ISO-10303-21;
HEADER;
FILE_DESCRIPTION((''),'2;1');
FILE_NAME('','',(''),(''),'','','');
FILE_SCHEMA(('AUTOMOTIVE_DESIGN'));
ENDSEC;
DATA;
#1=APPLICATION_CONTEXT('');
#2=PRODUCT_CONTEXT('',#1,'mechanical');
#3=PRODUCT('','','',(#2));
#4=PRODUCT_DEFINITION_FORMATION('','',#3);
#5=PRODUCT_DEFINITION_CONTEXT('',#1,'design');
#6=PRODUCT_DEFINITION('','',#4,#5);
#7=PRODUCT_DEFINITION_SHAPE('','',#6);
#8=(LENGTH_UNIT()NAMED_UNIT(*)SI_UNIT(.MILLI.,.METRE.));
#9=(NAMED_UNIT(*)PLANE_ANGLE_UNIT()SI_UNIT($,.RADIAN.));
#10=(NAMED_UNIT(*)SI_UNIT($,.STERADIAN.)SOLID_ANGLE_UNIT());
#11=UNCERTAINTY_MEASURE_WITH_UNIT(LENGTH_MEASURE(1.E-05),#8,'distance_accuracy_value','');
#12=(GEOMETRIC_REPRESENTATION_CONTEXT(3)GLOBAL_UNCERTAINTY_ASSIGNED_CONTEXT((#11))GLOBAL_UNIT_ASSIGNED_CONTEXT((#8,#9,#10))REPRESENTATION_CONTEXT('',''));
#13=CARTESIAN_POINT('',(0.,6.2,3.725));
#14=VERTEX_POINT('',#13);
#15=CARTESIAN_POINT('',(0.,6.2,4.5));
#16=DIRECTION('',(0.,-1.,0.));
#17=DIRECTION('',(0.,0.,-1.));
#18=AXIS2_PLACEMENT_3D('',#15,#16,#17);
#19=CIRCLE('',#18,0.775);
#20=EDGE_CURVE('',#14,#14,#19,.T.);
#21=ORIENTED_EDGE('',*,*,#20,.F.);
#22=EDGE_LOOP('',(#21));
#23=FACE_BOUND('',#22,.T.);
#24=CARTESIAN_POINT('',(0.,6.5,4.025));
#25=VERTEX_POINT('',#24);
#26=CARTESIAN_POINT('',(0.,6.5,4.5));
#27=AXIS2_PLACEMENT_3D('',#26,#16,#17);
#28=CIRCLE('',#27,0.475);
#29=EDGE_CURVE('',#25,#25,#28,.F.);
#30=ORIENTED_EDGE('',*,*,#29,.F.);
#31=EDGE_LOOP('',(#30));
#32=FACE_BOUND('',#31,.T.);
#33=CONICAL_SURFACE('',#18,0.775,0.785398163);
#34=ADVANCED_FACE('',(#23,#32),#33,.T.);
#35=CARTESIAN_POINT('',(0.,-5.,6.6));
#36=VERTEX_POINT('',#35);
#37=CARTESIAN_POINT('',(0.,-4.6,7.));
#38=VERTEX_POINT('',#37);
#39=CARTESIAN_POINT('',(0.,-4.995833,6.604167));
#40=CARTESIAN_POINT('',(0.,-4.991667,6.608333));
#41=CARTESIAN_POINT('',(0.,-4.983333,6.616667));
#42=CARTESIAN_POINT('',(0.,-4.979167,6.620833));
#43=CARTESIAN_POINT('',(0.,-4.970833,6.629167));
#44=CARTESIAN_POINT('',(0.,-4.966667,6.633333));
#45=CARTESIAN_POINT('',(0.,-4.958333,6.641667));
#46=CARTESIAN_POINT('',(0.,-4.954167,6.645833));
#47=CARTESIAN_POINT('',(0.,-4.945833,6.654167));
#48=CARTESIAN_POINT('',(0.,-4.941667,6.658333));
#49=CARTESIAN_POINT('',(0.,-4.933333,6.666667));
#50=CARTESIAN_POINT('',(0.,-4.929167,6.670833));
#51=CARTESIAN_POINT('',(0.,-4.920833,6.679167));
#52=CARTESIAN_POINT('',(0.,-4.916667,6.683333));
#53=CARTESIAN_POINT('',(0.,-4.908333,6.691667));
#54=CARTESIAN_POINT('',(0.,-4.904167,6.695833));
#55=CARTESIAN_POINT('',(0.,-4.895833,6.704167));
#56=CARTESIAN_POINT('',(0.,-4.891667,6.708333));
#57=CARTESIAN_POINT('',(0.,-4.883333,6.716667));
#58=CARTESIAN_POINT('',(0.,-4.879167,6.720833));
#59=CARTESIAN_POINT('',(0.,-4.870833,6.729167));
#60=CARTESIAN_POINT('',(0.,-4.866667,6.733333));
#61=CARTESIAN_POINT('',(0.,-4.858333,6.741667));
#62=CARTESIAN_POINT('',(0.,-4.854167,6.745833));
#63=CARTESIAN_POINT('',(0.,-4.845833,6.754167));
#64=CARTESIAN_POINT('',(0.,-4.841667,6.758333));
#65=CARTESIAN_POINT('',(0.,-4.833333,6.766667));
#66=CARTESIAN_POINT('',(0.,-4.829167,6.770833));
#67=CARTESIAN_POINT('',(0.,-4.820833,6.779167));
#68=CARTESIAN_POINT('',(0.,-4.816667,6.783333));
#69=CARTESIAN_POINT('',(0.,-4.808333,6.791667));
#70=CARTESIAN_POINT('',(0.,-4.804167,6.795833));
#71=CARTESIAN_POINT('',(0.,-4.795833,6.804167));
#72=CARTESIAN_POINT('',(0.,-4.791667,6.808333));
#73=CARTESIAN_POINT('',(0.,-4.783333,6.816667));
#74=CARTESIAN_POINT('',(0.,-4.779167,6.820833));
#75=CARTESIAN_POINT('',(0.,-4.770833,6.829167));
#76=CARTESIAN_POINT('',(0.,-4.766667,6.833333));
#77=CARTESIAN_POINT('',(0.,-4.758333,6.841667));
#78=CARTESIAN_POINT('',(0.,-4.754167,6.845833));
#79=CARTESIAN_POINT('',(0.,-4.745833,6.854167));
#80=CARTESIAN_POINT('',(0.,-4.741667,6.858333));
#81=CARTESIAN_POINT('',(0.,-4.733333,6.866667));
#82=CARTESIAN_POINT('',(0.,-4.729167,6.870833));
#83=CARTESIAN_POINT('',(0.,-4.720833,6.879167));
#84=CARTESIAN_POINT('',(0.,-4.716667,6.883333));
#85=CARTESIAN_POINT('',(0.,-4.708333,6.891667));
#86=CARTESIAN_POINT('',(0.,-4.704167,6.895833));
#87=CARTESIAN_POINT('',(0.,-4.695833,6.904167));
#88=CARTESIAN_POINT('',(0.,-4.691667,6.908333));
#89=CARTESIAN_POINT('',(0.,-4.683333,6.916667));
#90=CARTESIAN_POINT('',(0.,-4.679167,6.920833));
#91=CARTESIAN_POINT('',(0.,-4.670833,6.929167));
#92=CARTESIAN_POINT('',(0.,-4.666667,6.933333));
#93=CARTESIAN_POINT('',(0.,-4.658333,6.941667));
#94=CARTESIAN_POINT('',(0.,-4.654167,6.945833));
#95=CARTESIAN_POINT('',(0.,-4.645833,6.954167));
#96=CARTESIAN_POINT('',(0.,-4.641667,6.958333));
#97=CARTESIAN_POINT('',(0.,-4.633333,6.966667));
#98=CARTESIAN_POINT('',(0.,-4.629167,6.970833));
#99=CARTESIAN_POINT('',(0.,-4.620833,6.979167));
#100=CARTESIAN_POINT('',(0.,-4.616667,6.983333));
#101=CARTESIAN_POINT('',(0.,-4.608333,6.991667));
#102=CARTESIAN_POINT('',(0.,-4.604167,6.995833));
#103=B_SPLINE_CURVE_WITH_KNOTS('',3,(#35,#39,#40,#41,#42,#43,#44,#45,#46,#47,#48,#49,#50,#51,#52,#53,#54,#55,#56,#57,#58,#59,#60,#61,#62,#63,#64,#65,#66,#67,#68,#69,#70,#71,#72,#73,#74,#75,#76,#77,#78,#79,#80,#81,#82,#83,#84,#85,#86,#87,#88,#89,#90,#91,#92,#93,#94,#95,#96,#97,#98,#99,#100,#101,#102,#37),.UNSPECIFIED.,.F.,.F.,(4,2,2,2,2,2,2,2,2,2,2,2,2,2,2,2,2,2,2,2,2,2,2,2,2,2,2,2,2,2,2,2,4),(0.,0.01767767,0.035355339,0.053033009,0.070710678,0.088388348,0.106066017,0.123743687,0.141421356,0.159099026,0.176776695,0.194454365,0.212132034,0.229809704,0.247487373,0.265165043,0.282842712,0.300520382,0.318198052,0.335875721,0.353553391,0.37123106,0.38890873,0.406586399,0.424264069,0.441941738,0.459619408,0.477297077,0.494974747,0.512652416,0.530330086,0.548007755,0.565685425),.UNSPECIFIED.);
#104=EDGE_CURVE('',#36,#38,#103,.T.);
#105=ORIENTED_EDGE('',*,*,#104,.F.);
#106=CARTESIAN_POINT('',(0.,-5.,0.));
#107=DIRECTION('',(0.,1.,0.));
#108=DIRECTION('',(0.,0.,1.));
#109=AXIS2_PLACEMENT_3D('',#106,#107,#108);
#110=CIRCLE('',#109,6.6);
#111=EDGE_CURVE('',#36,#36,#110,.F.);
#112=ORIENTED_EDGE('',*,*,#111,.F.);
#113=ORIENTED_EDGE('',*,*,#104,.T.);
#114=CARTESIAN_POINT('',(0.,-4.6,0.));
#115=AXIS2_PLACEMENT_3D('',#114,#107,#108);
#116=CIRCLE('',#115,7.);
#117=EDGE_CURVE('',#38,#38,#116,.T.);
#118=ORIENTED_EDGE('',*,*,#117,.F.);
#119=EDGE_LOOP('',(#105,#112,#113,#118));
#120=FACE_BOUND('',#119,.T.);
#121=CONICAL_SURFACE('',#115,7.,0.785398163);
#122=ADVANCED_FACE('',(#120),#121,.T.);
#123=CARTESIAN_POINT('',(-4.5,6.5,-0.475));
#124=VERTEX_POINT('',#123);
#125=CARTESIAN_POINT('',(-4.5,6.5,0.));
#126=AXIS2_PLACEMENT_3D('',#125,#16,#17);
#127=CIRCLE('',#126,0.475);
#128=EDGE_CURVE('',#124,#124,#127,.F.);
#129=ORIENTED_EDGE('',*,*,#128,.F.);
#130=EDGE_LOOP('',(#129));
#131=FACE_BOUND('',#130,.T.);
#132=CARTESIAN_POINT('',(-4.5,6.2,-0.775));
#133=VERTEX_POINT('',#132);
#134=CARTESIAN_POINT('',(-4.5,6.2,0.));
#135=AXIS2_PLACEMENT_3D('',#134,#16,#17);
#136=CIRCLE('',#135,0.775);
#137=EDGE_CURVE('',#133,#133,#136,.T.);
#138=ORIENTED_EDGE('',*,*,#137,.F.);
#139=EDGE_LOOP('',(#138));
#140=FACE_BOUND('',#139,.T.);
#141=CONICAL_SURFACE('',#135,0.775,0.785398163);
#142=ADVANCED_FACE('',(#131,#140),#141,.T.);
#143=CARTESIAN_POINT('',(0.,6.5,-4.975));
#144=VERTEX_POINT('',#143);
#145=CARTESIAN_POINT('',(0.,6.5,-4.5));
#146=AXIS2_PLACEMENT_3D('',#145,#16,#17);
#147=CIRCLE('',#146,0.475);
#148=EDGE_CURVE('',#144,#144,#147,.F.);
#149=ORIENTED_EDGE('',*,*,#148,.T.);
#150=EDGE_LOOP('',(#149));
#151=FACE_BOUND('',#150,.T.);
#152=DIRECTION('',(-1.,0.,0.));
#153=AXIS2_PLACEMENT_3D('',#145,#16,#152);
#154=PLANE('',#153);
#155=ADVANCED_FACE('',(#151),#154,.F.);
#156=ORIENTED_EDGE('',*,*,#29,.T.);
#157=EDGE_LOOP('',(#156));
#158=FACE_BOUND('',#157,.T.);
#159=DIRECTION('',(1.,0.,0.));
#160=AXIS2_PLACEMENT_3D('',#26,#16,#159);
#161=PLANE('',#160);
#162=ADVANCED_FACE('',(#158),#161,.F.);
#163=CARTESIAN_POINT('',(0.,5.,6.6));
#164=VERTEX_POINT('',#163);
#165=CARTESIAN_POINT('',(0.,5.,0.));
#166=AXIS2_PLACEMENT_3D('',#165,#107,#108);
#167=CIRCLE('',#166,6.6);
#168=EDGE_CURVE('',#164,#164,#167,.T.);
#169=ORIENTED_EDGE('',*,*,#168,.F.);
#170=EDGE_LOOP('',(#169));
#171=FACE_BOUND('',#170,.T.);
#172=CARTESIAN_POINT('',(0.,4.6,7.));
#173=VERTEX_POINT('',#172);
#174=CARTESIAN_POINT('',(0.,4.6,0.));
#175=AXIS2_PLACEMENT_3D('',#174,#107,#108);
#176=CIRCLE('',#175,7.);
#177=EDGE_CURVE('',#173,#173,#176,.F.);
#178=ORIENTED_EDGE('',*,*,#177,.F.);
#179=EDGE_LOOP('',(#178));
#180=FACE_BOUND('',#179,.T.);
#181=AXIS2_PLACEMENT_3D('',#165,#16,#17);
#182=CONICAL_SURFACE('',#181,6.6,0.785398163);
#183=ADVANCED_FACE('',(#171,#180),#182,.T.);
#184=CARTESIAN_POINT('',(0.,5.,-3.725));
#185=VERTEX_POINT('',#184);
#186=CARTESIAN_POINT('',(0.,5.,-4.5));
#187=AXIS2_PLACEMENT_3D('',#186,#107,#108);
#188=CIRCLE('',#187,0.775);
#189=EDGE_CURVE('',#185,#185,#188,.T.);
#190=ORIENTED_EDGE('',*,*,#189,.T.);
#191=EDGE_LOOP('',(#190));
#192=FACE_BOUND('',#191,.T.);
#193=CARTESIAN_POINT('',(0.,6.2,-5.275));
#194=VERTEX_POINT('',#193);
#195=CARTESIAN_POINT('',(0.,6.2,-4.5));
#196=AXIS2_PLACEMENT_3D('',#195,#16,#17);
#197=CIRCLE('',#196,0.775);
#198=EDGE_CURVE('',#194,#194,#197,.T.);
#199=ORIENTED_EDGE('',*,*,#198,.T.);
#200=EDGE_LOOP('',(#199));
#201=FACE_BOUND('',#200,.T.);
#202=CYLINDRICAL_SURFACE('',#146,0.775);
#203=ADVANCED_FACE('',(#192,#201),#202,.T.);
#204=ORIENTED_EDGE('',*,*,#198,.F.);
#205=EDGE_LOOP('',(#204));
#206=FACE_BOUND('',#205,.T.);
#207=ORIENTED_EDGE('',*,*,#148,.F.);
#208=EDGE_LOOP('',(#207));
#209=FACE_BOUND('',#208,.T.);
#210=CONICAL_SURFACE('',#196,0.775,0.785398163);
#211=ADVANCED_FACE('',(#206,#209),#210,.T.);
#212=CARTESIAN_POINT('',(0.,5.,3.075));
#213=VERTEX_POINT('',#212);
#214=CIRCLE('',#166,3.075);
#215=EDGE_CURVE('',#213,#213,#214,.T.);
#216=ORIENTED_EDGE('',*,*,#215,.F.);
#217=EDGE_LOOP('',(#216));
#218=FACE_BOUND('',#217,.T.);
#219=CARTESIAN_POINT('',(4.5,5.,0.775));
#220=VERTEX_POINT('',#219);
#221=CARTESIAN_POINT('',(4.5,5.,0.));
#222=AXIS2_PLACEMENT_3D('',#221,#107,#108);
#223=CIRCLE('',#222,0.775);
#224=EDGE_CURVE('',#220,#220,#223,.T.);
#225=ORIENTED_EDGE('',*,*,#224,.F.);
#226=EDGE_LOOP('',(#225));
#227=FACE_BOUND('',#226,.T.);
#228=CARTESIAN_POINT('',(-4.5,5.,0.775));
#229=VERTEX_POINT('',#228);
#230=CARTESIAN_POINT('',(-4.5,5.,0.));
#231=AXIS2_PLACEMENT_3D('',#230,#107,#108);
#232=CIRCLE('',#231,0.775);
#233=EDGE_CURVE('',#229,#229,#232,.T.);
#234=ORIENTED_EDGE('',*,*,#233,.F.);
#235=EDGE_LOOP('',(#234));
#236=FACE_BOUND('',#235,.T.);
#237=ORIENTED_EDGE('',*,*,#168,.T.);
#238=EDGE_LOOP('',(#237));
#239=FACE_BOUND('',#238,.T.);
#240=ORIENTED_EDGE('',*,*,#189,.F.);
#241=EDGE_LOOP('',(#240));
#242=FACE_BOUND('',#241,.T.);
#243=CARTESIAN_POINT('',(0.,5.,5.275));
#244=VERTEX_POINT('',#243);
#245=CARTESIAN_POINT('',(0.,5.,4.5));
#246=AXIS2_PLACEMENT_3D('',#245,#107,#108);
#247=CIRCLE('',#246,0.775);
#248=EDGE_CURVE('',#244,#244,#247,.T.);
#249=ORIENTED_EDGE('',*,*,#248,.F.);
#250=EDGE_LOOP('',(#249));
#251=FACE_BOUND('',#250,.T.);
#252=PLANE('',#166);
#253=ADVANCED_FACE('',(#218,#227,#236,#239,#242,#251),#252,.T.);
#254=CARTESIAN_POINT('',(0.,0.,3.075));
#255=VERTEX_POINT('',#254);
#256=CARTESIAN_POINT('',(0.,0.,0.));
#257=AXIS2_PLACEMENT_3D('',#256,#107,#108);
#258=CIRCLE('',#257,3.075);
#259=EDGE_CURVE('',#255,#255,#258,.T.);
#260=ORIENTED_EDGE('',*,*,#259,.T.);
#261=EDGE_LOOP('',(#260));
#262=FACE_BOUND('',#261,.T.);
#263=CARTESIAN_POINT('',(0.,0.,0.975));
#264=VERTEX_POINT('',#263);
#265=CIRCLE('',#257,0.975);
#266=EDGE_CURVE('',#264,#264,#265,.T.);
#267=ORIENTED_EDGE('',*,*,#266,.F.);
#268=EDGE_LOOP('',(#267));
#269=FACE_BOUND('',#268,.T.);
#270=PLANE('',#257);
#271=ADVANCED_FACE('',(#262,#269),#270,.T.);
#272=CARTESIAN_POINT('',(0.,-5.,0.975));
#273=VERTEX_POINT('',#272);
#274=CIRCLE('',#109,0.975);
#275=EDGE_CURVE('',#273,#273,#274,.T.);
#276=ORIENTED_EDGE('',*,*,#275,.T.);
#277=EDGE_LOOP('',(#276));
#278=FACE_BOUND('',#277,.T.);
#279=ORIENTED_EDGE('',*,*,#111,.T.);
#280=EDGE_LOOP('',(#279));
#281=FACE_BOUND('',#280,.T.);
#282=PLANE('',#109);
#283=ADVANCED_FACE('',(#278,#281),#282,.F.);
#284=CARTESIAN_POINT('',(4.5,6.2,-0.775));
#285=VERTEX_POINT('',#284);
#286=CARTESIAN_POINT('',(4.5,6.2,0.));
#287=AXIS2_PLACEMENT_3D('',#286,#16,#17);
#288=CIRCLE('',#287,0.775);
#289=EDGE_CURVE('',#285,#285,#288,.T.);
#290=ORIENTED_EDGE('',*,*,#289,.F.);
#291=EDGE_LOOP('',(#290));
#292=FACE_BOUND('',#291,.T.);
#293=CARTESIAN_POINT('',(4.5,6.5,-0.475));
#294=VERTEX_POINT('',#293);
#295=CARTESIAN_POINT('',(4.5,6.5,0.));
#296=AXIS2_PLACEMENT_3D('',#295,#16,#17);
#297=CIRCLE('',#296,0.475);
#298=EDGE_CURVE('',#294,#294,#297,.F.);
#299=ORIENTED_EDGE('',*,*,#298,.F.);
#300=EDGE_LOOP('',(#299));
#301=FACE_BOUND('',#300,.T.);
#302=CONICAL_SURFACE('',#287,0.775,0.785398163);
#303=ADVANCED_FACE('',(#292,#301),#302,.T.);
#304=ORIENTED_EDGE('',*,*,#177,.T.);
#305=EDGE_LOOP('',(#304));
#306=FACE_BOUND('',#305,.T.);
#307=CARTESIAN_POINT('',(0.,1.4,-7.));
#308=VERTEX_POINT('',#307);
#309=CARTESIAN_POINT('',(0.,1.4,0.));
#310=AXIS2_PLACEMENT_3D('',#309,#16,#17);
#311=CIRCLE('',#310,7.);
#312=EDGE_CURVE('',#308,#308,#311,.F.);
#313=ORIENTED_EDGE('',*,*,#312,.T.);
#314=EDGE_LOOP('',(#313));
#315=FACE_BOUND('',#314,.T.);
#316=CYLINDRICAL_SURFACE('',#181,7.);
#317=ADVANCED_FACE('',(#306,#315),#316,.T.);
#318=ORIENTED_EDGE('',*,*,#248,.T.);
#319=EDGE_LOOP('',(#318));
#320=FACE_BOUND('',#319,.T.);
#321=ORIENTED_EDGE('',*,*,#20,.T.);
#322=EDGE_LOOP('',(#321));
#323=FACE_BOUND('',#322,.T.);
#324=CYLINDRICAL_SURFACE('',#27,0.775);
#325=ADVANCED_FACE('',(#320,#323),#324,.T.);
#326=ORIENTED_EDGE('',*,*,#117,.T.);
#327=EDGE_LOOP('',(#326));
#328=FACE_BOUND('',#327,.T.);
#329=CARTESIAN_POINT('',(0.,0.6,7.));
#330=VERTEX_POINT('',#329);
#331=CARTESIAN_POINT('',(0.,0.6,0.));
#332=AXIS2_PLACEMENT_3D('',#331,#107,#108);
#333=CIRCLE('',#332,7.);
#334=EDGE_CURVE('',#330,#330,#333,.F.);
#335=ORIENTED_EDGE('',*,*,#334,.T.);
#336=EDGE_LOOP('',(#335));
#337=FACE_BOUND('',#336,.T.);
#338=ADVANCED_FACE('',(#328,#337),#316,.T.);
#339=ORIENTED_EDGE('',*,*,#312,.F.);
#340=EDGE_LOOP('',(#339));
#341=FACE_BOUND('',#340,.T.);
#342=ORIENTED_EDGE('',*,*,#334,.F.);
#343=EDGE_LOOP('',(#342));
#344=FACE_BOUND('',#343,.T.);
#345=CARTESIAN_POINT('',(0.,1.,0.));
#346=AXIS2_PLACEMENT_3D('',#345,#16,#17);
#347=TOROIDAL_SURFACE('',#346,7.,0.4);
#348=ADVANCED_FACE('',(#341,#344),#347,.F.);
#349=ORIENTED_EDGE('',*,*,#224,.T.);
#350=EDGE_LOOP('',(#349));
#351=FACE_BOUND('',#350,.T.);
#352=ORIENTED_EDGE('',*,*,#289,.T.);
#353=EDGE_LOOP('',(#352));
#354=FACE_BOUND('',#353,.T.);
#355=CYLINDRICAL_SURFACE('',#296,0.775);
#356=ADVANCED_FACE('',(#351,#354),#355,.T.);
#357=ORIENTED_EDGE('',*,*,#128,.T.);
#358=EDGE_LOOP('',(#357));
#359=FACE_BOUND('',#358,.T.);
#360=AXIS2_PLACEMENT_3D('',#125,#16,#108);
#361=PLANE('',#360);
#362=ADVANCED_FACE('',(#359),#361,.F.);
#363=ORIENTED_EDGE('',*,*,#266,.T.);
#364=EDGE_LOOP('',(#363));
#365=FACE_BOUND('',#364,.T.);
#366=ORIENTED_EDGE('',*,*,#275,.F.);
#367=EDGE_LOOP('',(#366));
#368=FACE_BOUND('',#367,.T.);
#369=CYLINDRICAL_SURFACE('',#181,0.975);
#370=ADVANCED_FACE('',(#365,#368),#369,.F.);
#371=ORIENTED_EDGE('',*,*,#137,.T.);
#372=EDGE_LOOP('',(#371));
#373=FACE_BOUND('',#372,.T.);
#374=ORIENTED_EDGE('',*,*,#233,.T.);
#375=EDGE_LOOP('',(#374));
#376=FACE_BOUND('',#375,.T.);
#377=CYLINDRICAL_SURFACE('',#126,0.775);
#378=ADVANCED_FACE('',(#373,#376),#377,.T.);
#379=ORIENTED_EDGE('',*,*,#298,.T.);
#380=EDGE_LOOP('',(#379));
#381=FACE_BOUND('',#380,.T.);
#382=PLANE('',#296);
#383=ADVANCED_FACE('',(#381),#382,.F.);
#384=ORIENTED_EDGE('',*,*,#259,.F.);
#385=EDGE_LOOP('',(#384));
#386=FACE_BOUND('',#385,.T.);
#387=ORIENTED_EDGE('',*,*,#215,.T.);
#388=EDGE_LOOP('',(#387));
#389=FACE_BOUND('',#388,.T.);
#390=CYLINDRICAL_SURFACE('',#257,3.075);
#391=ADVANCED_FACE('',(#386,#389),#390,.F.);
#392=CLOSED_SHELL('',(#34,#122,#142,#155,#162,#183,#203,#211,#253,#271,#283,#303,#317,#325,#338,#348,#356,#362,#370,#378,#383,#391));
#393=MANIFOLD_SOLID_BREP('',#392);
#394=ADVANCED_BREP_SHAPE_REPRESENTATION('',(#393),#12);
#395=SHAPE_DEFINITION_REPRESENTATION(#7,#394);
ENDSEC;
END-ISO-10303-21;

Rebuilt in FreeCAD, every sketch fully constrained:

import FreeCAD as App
import Part
import Sketcher


def edges_at(feature, points):
    """Names of the edges that pass closest to the given points."""
    edges = feature.Shape.Edges
    near = lambda p: min(range(len(edges)), key=lambda i: edges[i].distToShape(Part.Vertex(*p))[0])
    return sorted({f"Edge{near(p) + 1}" for p in points})

doc = App.newDocument("Part")
body = doc.addObject("PartDesign::Body", "Body")

# Sketch on XZ plane
sketch1 = body.newObject("Sketcher::SketchObject", "Sketch")
sketch1.AttachmentSupport = (doc.getObject("XZ_Plane"), [""])
sketch1.MapMode = "FlatFace"
sketch1.addGeometry(Part.Circle(App.Vector(0, 0, 0), App.Vector(0, 0, 1), 7), False)
sketch1.addGeometry(Part.Circle(App.Vector(0, 0, 0), App.Vector(0, 0, 1), 1), False)
sketch1.addConstraint(Sketcher.Constraint("Coincident", 0, 3, -1, 1))
sketch1.addConstraint(Sketcher.Constraint("Coincident", 1, 3, -1, 1))
sketch1.addConstraint(Sketcher.Constraint("Diameter", 0, 14.0))
sketch1.addConstraint(Sketcher.Constraint("Diameter", 1, 1.95))
pad1 = body.newObject("PartDesign::Pad", "Pad")
pad1.Profile = sketch1
pad1.Length = 10
pad1.Midplane = True

# Sketch on XZ plane
sketch2 = body.newObject("Sketcher::SketchObject", "Sketch001")
sketch2.AttachmentSupport = (doc.getObject("XZ_Plane"), [""])
sketch2.MapMode = "FlatFace"
sketch2.AttachmentOffset = App.Placement(App.Vector(0, 0, -5), App.Rotation())
sketch2.addGeometry(Part.Circle(App.Vector(0, 0, 0), App.Vector(0, 0, 1), 3.1), False)
sketch2.addConstraint(Sketcher.Constraint("Coincident", 0, 3, -1, 1))
sketch2.addConstraint(Sketcher.Constraint("Diameter", 0, 6.15))
pocket1 = body.newObject("PartDesign::Pocket", "Pocket")
pocket1.Profile = sketch2
pocket1.Length = 5
pocket1.Reversed = True

# Sketch on XZ plane
sketch3 = body.newObject("Sketcher::SketchObject", "Sketch002")
sketch3.AttachmentSupport = (doc.getObject("XZ_Plane"), [""])
sketch3.MapMode = "FlatFace"
sketch3.AttachmentOffset = App.Placement(App.Vector(0, 0, -5), App.Rotation())
sketch3.addGeometry(Part.Circle(App.Vector(4.5, 0, 0), App.Vector(0, 0, 1), 0.8), False)
sketch3.addConstraint(Sketcher.Constraint("PointOnObject", 0, 3, -1))
sketch3.addConstraint(Sketcher.Constraint("Diameter", 0, 1.55))
sketch3.addConstraint(Sketcher.Constraint("DistanceX", -1, 1, 0, 3, 4.5))
pad2 = body.newObject("PartDesign::Pad", "Pad001")
pad2.Profile = sketch3
pad2.Length = 1.5
pad2.Reversed = True
doc.recompute()

chamfer = body.newObject("PartDesign::Chamfer", "Chamfer")
chamfer.Base = (pad2, edges_at(pad2, [(4.5, 6.5, 0.775)]))
chamfer.Size = 0.3
doc.recompute()

polarpattern = body.newObject("PartDesign::PolarPattern", "PolarPattern")
polarpattern.Originals = [pad2]
polarpattern.Axis = (doc.getObject("Y_Axis"), [""])
polarpattern.Angle = 360
polarpattern.Occurrences = 4
body.Tip = polarpattern
doc.recompute()

chamfer2 = body.newObject("PartDesign::Chamfer", "Chamfer001")
chamfer2.Base = (polarpattern, edges_at(polarpattern, [(0.775, 6.5, -4.5), (-4.5, 6.5, -0.775), (-0.775, 6.5, 4.5)]))
chamfer2.Size = 0.3

# Sketch on XY plane
sketch4 = body.newObject("Sketcher::SketchObject", "Sketch003")
sketch4.AttachmentSupport = (doc.getObject("XY_Plane"), [""])
sketch4.MapMode = "FlatFace"
sketch4.addGeometry(Part.Circle(App.Vector(7, 1, 0), App.Vector(0, 0, 1), 0.4), False)
sketch4.addConstraint(Sketcher.Constraint("Diameter", 0, 0.8))
sketch4.addConstraint(Sketcher.Constraint("DistanceX", -1, 1, 0, 3, 7.0))
sketch4.addConstraint(Sketcher.Constraint("DistanceY", -1, 1, 0, 3, 1.0))
groove = body.newObject("PartDesign::Groove", "Groove")
groove.Profile = sketch4
groove.ReferenceAxis = (sketch4, ["V_Axis"])
groove.Angle = 360
doc.recompute()

chamfer3 = body.newObject("PartDesign::Chamfer", "Chamfer002")
chamfer3.Base = (groove, edges_at(groove, [(0, -5, -7), (0, 5, -7)]))
chamfer3.Size = 0.4

doc.recompute()
